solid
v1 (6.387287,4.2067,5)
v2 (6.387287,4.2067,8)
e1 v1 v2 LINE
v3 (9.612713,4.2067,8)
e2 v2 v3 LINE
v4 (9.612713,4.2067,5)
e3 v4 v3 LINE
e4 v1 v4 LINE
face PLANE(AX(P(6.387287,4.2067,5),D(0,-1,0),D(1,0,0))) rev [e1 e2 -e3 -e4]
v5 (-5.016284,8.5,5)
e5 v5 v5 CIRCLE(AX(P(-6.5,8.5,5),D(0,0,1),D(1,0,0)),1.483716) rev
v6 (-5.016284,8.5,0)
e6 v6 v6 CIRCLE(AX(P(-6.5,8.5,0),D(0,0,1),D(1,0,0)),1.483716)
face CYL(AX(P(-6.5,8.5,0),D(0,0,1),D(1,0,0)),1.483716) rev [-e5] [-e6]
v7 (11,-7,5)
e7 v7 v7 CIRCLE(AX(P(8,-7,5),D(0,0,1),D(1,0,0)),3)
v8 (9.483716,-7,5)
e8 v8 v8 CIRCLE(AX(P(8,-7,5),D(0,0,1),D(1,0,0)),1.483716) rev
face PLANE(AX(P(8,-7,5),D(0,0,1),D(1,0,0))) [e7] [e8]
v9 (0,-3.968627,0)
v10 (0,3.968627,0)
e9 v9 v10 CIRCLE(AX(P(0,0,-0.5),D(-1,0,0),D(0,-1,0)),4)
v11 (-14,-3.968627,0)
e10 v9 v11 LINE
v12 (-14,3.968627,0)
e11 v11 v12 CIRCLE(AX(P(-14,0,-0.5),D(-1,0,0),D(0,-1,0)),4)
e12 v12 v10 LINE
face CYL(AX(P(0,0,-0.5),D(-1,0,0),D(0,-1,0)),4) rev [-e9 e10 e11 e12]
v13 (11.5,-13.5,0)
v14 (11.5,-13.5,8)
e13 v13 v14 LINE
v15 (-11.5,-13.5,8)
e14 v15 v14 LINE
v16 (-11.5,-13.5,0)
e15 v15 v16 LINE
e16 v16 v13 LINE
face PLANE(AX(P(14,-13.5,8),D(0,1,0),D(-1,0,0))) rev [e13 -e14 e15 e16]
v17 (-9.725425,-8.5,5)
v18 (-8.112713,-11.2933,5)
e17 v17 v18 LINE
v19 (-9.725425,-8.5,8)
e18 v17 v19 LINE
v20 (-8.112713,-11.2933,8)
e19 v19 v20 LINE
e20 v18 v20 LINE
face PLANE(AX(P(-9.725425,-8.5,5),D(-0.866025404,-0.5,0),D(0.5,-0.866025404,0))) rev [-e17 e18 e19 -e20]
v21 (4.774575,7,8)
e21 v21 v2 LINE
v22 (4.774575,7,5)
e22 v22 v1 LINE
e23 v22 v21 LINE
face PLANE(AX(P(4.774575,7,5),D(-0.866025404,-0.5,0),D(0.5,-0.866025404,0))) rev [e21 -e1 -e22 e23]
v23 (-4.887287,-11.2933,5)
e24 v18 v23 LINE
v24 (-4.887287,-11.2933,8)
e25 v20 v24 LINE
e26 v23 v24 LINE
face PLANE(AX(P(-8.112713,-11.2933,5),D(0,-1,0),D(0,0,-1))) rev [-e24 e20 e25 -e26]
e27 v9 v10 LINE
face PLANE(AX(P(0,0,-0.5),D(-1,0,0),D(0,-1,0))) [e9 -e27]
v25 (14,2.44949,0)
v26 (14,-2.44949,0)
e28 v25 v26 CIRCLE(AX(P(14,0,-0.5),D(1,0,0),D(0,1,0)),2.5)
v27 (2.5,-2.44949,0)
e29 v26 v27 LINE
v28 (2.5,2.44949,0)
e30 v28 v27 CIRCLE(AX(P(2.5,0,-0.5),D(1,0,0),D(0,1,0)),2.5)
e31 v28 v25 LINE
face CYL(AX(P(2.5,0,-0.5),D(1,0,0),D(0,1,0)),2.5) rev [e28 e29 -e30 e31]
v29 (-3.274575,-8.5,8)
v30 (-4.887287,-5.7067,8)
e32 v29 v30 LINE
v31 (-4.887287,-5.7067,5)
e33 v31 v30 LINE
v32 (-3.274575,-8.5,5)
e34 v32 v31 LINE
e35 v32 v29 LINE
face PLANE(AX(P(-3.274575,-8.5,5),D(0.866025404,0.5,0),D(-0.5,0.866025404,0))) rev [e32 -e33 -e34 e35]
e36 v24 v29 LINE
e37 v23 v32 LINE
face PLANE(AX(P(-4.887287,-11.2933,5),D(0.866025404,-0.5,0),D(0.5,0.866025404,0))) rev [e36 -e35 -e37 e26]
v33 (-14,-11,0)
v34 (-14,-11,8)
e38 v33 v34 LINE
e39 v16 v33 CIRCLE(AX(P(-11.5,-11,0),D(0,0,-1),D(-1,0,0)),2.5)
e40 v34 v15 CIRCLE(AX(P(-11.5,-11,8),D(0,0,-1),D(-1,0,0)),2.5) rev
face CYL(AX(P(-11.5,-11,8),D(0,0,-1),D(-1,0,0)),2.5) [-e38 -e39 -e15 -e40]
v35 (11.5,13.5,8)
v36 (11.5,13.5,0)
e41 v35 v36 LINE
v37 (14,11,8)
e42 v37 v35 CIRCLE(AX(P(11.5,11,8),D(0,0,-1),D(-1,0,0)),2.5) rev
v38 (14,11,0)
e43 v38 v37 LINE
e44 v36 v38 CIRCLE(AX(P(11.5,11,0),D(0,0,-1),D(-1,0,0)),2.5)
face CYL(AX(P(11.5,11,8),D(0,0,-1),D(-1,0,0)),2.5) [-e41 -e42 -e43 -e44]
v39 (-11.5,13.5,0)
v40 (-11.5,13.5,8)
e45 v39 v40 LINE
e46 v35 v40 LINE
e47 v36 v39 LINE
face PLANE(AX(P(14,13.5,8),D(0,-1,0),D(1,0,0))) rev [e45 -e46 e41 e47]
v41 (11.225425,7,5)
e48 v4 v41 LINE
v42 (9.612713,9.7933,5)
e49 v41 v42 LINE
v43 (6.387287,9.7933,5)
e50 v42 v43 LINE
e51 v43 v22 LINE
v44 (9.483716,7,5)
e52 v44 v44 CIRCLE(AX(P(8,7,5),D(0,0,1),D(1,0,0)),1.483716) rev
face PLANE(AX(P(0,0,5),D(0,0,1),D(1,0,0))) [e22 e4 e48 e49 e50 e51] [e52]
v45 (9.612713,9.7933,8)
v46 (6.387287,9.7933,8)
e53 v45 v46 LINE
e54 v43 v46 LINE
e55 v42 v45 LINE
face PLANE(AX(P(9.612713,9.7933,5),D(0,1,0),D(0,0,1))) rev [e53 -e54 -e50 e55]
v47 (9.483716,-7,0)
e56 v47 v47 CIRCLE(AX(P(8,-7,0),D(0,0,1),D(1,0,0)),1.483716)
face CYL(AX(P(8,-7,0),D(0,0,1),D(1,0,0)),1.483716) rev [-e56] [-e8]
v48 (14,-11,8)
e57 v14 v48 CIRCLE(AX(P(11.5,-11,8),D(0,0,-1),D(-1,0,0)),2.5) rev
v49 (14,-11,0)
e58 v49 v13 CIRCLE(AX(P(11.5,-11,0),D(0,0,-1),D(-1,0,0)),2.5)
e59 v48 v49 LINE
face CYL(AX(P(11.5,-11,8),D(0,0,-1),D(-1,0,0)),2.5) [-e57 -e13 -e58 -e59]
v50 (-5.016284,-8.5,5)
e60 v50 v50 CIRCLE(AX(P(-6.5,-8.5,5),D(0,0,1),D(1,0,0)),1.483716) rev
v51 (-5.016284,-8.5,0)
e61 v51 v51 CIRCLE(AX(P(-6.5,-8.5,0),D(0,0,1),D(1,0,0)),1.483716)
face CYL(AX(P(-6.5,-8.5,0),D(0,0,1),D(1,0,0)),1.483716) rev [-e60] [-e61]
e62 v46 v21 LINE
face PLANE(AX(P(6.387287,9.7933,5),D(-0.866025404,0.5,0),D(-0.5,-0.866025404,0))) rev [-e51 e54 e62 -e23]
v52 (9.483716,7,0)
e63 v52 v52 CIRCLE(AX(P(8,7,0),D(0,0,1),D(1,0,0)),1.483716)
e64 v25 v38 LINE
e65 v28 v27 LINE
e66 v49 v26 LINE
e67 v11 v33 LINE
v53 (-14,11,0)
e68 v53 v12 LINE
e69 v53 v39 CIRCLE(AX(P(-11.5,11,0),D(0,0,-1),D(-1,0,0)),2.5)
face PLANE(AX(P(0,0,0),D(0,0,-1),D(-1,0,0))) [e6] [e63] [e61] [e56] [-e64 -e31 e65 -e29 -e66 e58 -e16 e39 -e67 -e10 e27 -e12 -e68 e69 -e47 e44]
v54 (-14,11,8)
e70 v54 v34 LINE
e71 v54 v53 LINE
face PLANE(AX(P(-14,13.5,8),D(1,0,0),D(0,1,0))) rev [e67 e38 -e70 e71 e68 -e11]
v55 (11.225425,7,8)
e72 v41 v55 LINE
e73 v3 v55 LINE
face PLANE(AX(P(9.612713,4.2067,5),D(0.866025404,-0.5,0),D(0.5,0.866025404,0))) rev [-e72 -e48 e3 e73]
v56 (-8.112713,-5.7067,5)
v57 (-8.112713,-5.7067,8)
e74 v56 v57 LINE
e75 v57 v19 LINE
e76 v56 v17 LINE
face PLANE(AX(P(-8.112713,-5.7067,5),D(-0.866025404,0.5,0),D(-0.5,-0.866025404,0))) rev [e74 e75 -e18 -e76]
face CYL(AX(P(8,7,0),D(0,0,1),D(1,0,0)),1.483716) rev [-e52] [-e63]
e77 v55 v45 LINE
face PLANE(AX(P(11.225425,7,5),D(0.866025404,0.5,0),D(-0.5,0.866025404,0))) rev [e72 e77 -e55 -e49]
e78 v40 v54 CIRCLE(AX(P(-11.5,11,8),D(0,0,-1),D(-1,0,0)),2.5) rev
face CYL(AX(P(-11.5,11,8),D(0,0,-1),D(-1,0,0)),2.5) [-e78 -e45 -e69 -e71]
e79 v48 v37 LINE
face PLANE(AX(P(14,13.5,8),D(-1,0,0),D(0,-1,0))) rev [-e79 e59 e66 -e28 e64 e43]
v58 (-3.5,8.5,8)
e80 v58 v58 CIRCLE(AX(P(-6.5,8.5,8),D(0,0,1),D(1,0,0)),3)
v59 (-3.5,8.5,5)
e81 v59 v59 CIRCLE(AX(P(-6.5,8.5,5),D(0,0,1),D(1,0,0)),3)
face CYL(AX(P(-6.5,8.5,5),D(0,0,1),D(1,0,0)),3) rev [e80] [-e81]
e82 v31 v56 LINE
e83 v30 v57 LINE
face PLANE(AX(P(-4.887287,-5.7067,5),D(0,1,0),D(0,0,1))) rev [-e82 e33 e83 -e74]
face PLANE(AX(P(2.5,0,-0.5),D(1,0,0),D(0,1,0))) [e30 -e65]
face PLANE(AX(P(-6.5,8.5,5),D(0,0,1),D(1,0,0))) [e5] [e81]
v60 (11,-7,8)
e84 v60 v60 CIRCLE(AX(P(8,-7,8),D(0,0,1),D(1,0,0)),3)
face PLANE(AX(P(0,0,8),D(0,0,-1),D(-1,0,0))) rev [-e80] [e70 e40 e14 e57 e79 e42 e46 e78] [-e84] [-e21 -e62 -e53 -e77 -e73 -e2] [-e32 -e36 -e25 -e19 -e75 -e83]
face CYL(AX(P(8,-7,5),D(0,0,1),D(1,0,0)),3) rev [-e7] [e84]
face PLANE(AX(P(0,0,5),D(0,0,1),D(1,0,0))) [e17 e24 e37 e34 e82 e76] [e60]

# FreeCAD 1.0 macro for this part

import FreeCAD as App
import Part
import Sketcher
Q = App.Units.Quantity


def edges_at(feature, points):
    """Names of the edges that pass closest to the given points."""
    edges = feature.Shape.Edges
    near = lambda p: min(range(len(edges)), key=lambda i: edges[i].distToShape(Part.Vertex(*p))[0])
    return sorted({f"Edge{near(p) + 1}" for p in points})

doc = App.newDocument("Part")
body = doc.addObject("PartDesign::Body", "Body")

# Sketch on XY plane
sketch1 = body.newObject("Sketcher::SketchObject", "Sketch")
sketch1.AttachmentSupport = (doc.getObject("XY_Plane"), [""])
sketch1.MapMode = "FlatFace"
sketch1.addGeometry(Part.LineSegment(App.Vector(-14, 13.5, 0), App.Vector(-14, -13.5, 0)), False)
sketch1.addGeometry(Part.LineSegment(App.Vector(-14, -13.5, 0), App.Vector(14, -13.5, 0)), False)
sketch1.addGeometry(Part.LineSegment(App.Vector(14, -13.5, 0), App.Vector(14, 13.5, 0)), False)
sketch1.addGeometry(Part.LineSegment(App.Vector(14, 13.5, 0), App.Vector(-14, 13.5, 0)), False)
sketch1.addConstraint(Sketcher.Constraint("Coincident", 0, 2, 1, 1))
sketch1.addConstraint(Sketcher.Constraint("Coincident", 1, 2, 2, 1))
sketch1.addConstraint(Sketcher.Constraint("Coincident", 2, 2, 3, 1))
sketch1.addConstraint(Sketcher.Constraint("Coincident", 3, 2, 0, 1))
sketch1.addConstraint(Sketcher.Constraint("Vertical", 0))
sketch1.addConstraint(Sketcher.Constraint("Horizontal", 1))
sketch1.addConstraint(Sketcher.Constraint("Vertical", 2))
sketch1.addConstraint(Sketcher.Constraint("Horizontal", 3))
sketch1.addConstraint(Sketcher.Constraint("Symmetric", 0, 2, 2, 2, -1, 1))
sketch1.addConstraint(Sketcher.Constraint("DistanceX", 1, 1, 1, 2, Q("28 mm")))
sketch1.addConstraint(Sketcher.Constraint("DistanceY", 0, 2, 0, 1, Q("27 mm")))
pad1 = body.newObject("PartDesign::Pad", "Pad")
pad1.Profile = sketch1
pad1.Length = 8

# Sketch on XY plane
sketch2 = body.newObject("Sketcher::SketchObject", "Sketch001")
sketch2.AttachmentSupport = (doc.getObject("XY_Plane"), [""])
sketch2.MapMode = "FlatFace"
sketch2.AttachmentOffset = App.Placement(App.Vector(0, 0, 8), App.Rotation())
sketch2.addGeometry(Part.Circle(App.Vector(-6.5, 8.5, 0), App.Vector(0, 0, 1), 1.483716), False)
sketch2.addGeometry(Part.Circle(App.Vector(-6.5, -8.5, 0), App.Vector(0, 0, 1), 1.483716), False)
sketch2.addGeometry(Part.Circle(App.Vector(8, -7, 0), App.Vector(0, 0, 1), 1.483716), False)
sketch2.addGeometry(Part.Circle(App.Vector(8, 7, 0), App.Vector(0, 0, 1), 1.483716), False)
sketch2.addConstraint(Sketcher.Constraint("Equal", 0, 1))
sketch2.addConstraint(Sketcher.Constraint("Equal", 1, 2))
sketch2.addConstraint(Sketcher.Constraint("Equal", 2, 3))
sketch2.addConstraint(Sketcher.Constraint("Symmetric", 0, 3, 1, 3, -1))
sketch2.addConstraint(Sketcher.Constraint("Symmetric", 2, 3, 3, 3, -1))
sketch2.addConstraint(Sketcher.Constraint("DistanceX", -1, 1, 2, 3, Q("8 mm")))
sketch2.addConstraint(Sketcher.Constraint("DistanceY", 2, 3, -1, 1, Q("7 mm")))
sketch2.addConstraint(Sketcher.Constraint("DistanceY", 1, 3, 0, 3, Q("17 mm")))
sketch2.addConstraint(Sketcher.Constraint("DistanceX", 0, 3, -1, 1, Q("6.5 mm")))
sketch2.addConstraint(Sketcher.Constraint("Diameter", 0, Q("2.967432 mm")))
pocket1 = body.newObject("PartDesign::Pocket", "Pocket")
pocket1.Profile = sketch2
pocket1.Type = "ThroughAll"

# Sketch on XY plane
sketch3 = body.newObject("Sketcher::SketchObject", "Sketch002")
sketch3.AttachmentSupport = (doc.getObject("XY_Plane"), [""])
sketch3.MapMode = "FlatFace"
sketch3.AttachmentOffset = App.Placement(App.Vector(0, 0, 8), App.Rotation())
sketch3.addGeometry(Part.Circle(App.Vector(-6.5, 8.5, 0), App.Vector(0, 0, 1), 3), False)
sketch3.addGeometry(Part.Circle(App.Vector(8, -7, 0), App.Vector(0, 0, 1), 3), False)
sketch3.addGeometry(Part.LineSegment(App.Vector(-8.112713, -11.2933, 0), App.Vector(-4.887287, -11.2933, 0)), False)
sketch3.addGeometry(Part.LineSegment(App.Vector(-4.887287, -11.2933, 0), App.Vector(-3.274575, -8.5, 0)), False)
sketch3.addGeometry(Part.LineSegment(App.Vector(-3.274575, -8.5, 0), App.Vector(-4.887287, -5.7067, 0)), False)
sketch3.addGeometry(Part.LineSegment(App.Vector(-4.887287, -5.7067, 0), App.Vector(-8.112713, -5.7067, 0)), False)
sketch3.addGeometry(Part.LineSegment(App.Vector(-8.112713, -5.7067, 0), App.Vector(-9.725425, -8.5, 0)), False)
sketch3.addGeometry(Part.LineSegment(App.Vector(-9.725425, -8.5, 0), App.Vector(-8.112713, -11.2933, 0)), False)
sketch3.addGeometry(Part.LineSegment(App.Vector(6.387287, 4.2067, 0), App.Vector(9.612713, 4.2067, 0)), False)
sketch3.addGeometry(Part.LineSegment(App.Vector(9.612713, 4.2067, 0), App.Vector(11.225425, 7, 0)), False)
sketch3.addGeometry(Part.LineSegment(App.Vector(11.225425, 7, 0), App.Vector(9.612713, 9.7933, 0)), False)
sketch3.addGeometry(Part.LineSegment(App.Vector(9.612713, 9.7933, 0), App.Vector(6.387287, 9.7933, 0)), False)
sketch3.addGeometry(Part.LineSegment(App.Vector(6.387287, 9.7933, 0), App.Vector(4.774575, 7, 0)), False)
sketch3.addGeometry(Part.LineSegment(App.Vector(4.774575, 7, 0), App.Vector(6.387287, 4.2067, 0)), False)
sketch3.addConstraint(Sketcher.Constraint("Coincident", 2, 2, 3, 1))
sketch3.addConstraint(Sketcher.Constraint("Coincident", 3, 2, 4, 1))
sketch3.addConstraint(Sketcher.Constraint("Coincident", 4, 2, 5, 1))
sketch3.addConstraint(Sketcher.Constraint("Coincident", 5, 2, 6, 1))
sketch3.addConstraint(Sketcher.Constraint("Coincident", 6, 2, 7, 1))
sketch3.addConstraint(Sketcher.Constraint("Coincident", 7, 2, 2, 1))
sketch3.addConstraint(Sketcher.Constraint("Coincident", 8, 2, 9, 1))
sketch3.addConstraint(Sketcher.Constraint("Coincident", 9, 2, 10, 1))
sketch3.addConstraint(Sketcher.Constraint("Coincident", 10, 2, 11, 1))
sketch3.addConstraint(Sketcher.Constraint("Coincident", 11, 2, 12, 1))
sketch3.addConstraint(Sketcher.Constraint("Coincident", 12, 2, 13, 1))
sketch3.addConstraint(Sketcher.Constraint("Coincident", 13, 2, 8, 1))
sketch3.addConstraint(Sketcher.Constraint("Horizontal", 2))
sketch3.addConstraint(Sketcher.Constraint("Horizontal", 5))
sketch3.addConstraint(Sketcher.Constraint("Horizontal", 8))
sketch3.addConstraint(Sketcher.Constraint("Horizontal", 11))
sketch3.addConstraint(Sketcher.Constraint("Equal", 0, 1))
sketch3.addConstraint(Sketcher.Constraint("Parallel", 3, 6))
sketch3.addConstraint(Sketcher.Constraint("Parallel", 4, 7))
sketch3.addConstraint(Sketcher.Constraint("Parallel", 6, 9))
sketch3.addConstraint(Sketcher.Constraint("Parallel", 7, 10))
sketch3.addConstraint(Sketcher.Constraint("Parallel", 9, 12))
sketch3.addConstraint(Sketcher.Constraint("Parallel", 10, 13))
sketch3.addConstraint(Sketcher.Constraint("Horizontal", 3, 2, 6, 2))
sketch3.addConstraint(Sketcher.Constraint("Horizontal", 9, 2, 12, 2))
sketch3.addConstraint(Sketcher.Constraint("Vertical", 2, 2, 4, 2))
sketch3.addConstraint(Sketcher.Constraint("Vertical", 5, 2, 7, 2))
sketch3.addConstraint(Sketcher.Constraint("Vertical", 8, 2, 10, 2))
sketch3.addConstraint(Sketcher.Constraint("Equal", 5, 8))
sketch3.addConstraint(Sketcher.Constraint("Equal", 7, 9))
sketch3.addConstraint(Sketcher.Constraint("Diameter", 0, Q("6 mm")))
sketch3.addConstraint(Sketcher.Constraint("Angle", 3, Q("60 deg")))
sketch3.addConstraint(Sketcher.Constraint("DistanceX", -1, 1, 1, 3, Q("8 mm")))
sketch3.addConstraint(Sketcher.Constraint("DistanceY", 1, 3, -1, 1, Q("7 mm")))
sketch3.addConstraint(Sketcher.Constraint("DistanceY", -1, 1, 9, 2, Q("7 mm")))
sketch3.addConstraint(Sketcher.Constraint("DistanceY", 3, 2, 0, 3, Q("17 mm")))
sketch3.addConstraint(Sketcher.Constraint("DistanceX", 0, 3, -1, 1, Q("6.5 mm")))
sketch3.addConstraint(Sketcher.Constraint("DistanceY", -1, 1, 0, 3, Q("8.5 mm")))
sketch3.addConstraint(Sketcher.Constraint("DistanceX", 4, 2, 8, 2, Q("14.5 mm")))
sketch3.addConstraint(Sketcher.Constraint("DistanceY", 2, 2, -1, 1, Q("11.2933 mm")))
sketch3.addConstraint(Sketcher.Constraint("DistanceX", 2, 1, 2, 2, Q("3.225425 mm")))
sketch3.addConstraint(Sketcher.Constraint("DistanceX", 2, 2, -1, 1, Q("4.887287 mm")))
pocket2 = body.newObject("PartDesign::Pocket", "Pocket001")
pocket2.Profile = sketch3
pocket2.Length = 3
doc.recompute()

fillet = body.newObject("PartDesign::Fillet", "Fillet")
fillet.Base = (pocket2, edges_at(pocket2, [
    (-14, 13.5, 4),
    (14, 13.5, 4),
    (14, -13.5, 4),
    (-14, -13.5, 4),
]))
fillet.Radius = 2.5

# Sketch on YZ plane
sketch4 = body.newObject("Sketcher::SketchObject", "Sketch003")
sketch4.AttachmentSupport = (doc.getObject("YZ_Plane"), [""])
sketch4.MapMode = "FlatFace"
sketch4.AttachmentOffset = App.Placement(App.Vector(0, 0, 14), App.Rotation())
sketch4.addGeometry(Part.Circle(App.Vector(0, -0.5, 0), App.Vector(0, 0, 1), 2.5), False)
sketch4.addConstraint(Sketcher.Constraint("PointOnObject", 0, 3, -2))
sketch4.addConstraint(Sketcher.Constraint("Diameter", 0, Q("5 mm")))
sketch4.addConstraint(Sketcher.Constraint("DistanceY", 0, 3, -1, 1, Q("0.5 mm")))
pocket3 = body.newObject("PartDesign::Pocket", "Pocket002")
pocket3.Profile = sketch4
pocket3.Length = 11.5

# Sketch on YZ plane
sketch5 = body.newObject("Sketcher::SketchObject", "Sketch004")
sketch5.AttachmentSupport = (doc.getObject("YZ_Plane"), [""])
sketch5.MapMode = "FlatFace"
sketch5.AttachmentOffset = App.Placement(App.Vector(0, 0, -14), App.Rotation())
sketch5.addGeometry(Part.Circle(App.Vector(0, -0.5, 0), App.Vector(0, 0, 1), 4), False)
sketch5.addConstraint(Sketcher.Constraint("PointOnObject", 0, 3, -2))
sketch5.addConstraint(Sketcher.Constraint("Diameter", 0, Q("8 mm")))
sketch5.addConstraint(Sketcher.Constraint("DistanceY", 0, 3, -1, 1, Q("0.5 mm")))
pocket4 = body.newObject("PartDesign::Pocket", "Pocket003")
pocket4.Profile = sketch5
pocket4.Length = 14
pocket4.Reversed = True

doc.recompute()
